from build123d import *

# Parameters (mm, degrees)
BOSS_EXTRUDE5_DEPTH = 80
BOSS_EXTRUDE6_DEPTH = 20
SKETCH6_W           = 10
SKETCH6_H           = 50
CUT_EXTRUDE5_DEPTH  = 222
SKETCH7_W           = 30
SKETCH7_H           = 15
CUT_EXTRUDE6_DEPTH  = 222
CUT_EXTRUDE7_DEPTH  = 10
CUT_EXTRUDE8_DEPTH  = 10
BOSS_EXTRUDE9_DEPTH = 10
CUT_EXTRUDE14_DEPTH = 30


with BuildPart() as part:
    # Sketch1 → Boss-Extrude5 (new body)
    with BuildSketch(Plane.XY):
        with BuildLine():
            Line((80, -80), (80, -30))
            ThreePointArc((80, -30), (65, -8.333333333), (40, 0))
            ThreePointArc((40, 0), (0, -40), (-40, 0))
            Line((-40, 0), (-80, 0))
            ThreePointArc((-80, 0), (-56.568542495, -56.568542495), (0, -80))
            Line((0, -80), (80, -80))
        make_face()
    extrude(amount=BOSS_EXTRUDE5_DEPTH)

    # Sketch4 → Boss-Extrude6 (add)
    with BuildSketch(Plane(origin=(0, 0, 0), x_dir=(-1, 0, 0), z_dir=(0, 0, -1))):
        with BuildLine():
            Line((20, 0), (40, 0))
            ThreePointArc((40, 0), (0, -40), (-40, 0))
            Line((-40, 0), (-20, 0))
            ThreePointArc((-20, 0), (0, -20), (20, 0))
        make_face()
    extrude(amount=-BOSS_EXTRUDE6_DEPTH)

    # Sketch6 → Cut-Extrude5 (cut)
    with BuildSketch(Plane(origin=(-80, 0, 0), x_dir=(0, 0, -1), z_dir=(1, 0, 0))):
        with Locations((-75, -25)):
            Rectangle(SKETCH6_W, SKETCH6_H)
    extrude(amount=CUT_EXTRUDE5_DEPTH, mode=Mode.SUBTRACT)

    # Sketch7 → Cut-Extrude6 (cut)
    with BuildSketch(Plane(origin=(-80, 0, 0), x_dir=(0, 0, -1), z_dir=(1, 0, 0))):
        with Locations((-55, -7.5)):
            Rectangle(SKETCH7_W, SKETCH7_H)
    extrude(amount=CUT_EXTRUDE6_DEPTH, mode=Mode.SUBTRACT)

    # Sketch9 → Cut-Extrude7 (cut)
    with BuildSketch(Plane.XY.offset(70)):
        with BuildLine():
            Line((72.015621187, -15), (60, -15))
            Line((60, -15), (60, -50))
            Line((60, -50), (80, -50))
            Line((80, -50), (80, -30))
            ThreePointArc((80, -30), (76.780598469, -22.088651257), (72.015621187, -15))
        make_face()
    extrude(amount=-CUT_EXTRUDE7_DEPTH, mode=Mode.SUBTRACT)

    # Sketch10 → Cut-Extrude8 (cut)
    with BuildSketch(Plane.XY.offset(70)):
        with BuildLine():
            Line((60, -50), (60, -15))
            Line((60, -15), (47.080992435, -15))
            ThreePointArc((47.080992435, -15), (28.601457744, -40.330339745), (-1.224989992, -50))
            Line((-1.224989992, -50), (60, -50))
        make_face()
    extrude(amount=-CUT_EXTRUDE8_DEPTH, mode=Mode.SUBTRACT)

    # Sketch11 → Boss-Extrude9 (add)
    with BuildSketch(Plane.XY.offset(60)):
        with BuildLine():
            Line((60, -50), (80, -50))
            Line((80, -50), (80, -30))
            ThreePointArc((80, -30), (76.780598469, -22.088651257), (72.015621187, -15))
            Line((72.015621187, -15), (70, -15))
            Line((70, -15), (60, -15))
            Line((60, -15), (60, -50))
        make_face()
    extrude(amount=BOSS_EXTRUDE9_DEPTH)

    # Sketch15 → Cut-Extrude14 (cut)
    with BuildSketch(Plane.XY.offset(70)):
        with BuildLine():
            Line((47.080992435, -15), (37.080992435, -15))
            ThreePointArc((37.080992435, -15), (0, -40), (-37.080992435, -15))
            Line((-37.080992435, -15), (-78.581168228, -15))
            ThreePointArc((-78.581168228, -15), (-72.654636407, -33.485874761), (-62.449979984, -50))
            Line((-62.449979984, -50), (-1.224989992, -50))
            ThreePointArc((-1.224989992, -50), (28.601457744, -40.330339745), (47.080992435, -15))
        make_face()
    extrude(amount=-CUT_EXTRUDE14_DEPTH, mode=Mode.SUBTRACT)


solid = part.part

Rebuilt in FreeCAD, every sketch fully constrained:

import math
import FreeCAD as App
import Part
import Sketcher
Q = App.Units.Quantity


def add_polygon(sketch, points):
    """Adds a closed chain of lines whose ends are joined by coincident constraints."""
    first, n = sketch.GeometryCount, len(points)
    for a, b in zip(points, points[1:] + points[:1]):
        sketch.addGeometry(Part.LineSegment(App.Vector(*a, 0), App.Vector(*b, 0)), False)
    for i in range(n):
        sketch.addConstraint(Sketcher.Constraint("Coincident", first + i, 2, first + (i + 1) % n, 1))

doc = App.newDocument("Part")
body = doc.addObject("PartDesign::Body", "Body")

sketch1 = doc.addObject("Sketcher::SketchObject", "Sketch")
body.addObject(sketch1)
sketch1.AttachmentSupport = (doc.XY_Plane, [""])
sketch1.MapMode = "FlatFace"
sketch1.addGeometry([
    Part.LineSegment(App.Vector(80, -80, 0), App.Vector(80, -30, 0)),
    Part.ArcOfCircle(Part.Circle(App.Vector(40, -42, 0), App.Vector(0, 0, 1), 42), math.radians(16), math.radians(90)),
    Part.ArcOfCircle(Part.Circle(App.Vector(0, 0, 0), App.Vector(0, 0, 1), 40), math.radians(180), math.radians(360)),
    Part.LineSegment(App.Vector(-40, 0, 0), App.Vector(-80, 0, 0)),
    Part.ArcOfCircle(Part.Circle(App.Vector(0, 0, 0), App.Vector(0, 0, 1), 80), math.radians(180), math.radians(270)),
    Part.LineSegment(App.Vector(0, -80, 0), App.Vector(80, -80, 0)),
], False)
sketch1.addConstraint([
    Sketcher.Constraint("Coincident", 0, 2, 1, 1),
    Sketcher.Constraint("Coincident", 1, 2, 2, 2),
    Sketcher.Constraint("Coincident", 2, 1, 3, 1),
    Sketcher.Constraint("Coincident", 3, 2, 4, 1),
    Sketcher.Constraint("Tangent", 4, 2, 5, 1),
    Sketcher.Constraint("Coincident", 5, 2, 0, 1),
    Sketcher.Constraint("Vertical", 0),
    Sketcher.Constraint("Horizontal", 3),
    Sketcher.Constraint("Horizontal", 5),
    Sketcher.Constraint("Coincident", 2, 3, -1, 1),
    Sketcher.Constraint("Coincident", 4, 3, -1, 1),
    Sketcher.Constraint("PointOnObject", 1, 2, -1),
    Sketcher.Constraint("PointOnObject", 2, 1, -1),
    Sketcher.Constraint("Radius", 2, Q("40 mm")),
    Sketcher.Constraint("Radius", 4, Q("80 mm")),
    Sketcher.Constraint("DistanceX", 5, 1, 5, 2, Q("80 mm")),
    Sketcher.Constraint("DistanceY", 0, 1, 0, 2, Q("50 mm")),
    Sketcher.Constraint("DistanceX", -1, 1, 1, 3, Q("40 mm")),
])
pad1 = doc.addObject("PartDesign::Pad", "Pad")
body.addObject(pad1)
pad1.Profile = sketch1
pad1.Length = 80

sketch2 = doc.addObject("Sketcher::SketchObject", "Sketch001")
body.addObject(sketch2)
sketch2.AttachmentSupport = (doc.XY_Plane, [""])
sketch2.MapMode = "FlatFace"
sketch2.addGeometry([
    Part.LineSegment(App.Vector(-40, 0, 0), App.Vector(-20, 0, 0)),
    Part.ArcOfCircle(Part.Circle(App.Vector(0, 0, 0), App.Vector(0, 0, 1), 20), math.radians(180), math.radians(360)),
    Part.LineSegment(App.Vector(20, 0, 0), App.Vector(40, 0, 0)),
    Part.ArcOfCircle(Part.Circle(App.Vector(0, 0, 0), App.Vector(0, 0, 1), 40), math.radians(180), math.radians(360)),
], False)
sketch2.addConstraint([
    Sketcher.Constraint("Coincident", 0, 2, 1, 1),
    Sketcher.Constraint("Coincident", 1, 2, 2, 1),
    Sketcher.Constraint("Coincident", 2, 2, 3, 2),
    Sketcher.Constraint("Coincident", 3, 1, 0, 1),
    Sketcher.Constraint("Horizontal", 0),
    Sketcher.Constraint("Horizontal", 2),
    Sketcher.Constraint("Coincident", 1, 3, -1, 1),
    Sketcher.Constraint("Coincident", 3, 3, -1, 1),
    Sketcher.Constraint("PointOnObject", 0, 2, -1),
    Sketcher.Constraint("PointOnObject", 1, 2, -1),
    Sketcher.Constraint("Radius", 1, Q("20 mm")),
    Sketcher.Constraint("Radius", 3, Q("40 mm")),
])
pad2 = doc.addObject("PartDesign::Pad", "Pad001")
body.addObject(pad2)
pad2.Profile = sketch2
pad2.Length = 20

sketch3 = doc.addObject("Sketcher::SketchObject", "Sketch002")
body.addObject(sketch3)
sketch3.AttachmentSupport = (doc.YZ_Plane, [""])
sketch3.MapMode = "FlatFace"
sketch3.AttachmentOffset = App.Placement(App.Vector(0, 0, -80), App.Rotation())
add_polygon(sketch3, [(0, 80), (-50, 80), (-50, 70), (0, 70)])
sketch3.addConstraint([
    Sketcher.Constraint("Horizontal", 0),
    Sketcher.Constraint("Vertical", 1),
    Sketcher.Constraint("Horizontal", 2),
    Sketcher.Constraint("Vertical", 3),
    Sketcher.Constraint("PointOnObject", 2, 2, -2),
    Sketcher.Constraint("DistanceX", 0, 2, 0, 1, Q("50 mm")),
    Sketcher.Constraint("DistanceY", 1, 2, 1, 1, Q("10 mm")),
    Sketcher.Constraint("DistanceY", -1, 1, 0, 2, Q("80 mm")),
])
pocket1 = doc.addObject("PartDesign::Pocket", "Pocket")
body.addObject(pocket1)
pocket1.Profile = sketch3
pocket1.Length = 222
pocket1.Reversed = True

sketch4 = doc.addObject("Sketcher::SketchObject", "Sketch003")
body.addObject(sketch4)
sketch4.AttachmentSupport = (doc.YZ_Plane, [""])
sketch4.MapMode = "FlatFace"
sketch4.AttachmentOffset = App.Placement(App.Vector(0, 0, -80), App.Rotation())
add_polygon(sketch4, [(0, 70), (-15, 70), (-15, 40), (0, 40)])
sketch4.addConstraint([
    Sketcher.Constraint("Horizontal", 0),
    Sketcher.Constraint("Vertical", 1),
    Sketcher.Constraint("Horizontal", 2),
    Sketcher.Constraint("Vertical", 3),
    Sketcher.Constraint("PointOnObject", 2, 2, -2),
    Sketcher.Constraint("DistanceX", 0, 2, 0, 1, Q("15 mm")),
    Sketcher.Constraint("DistanceY", 1, 2, 1, 1, Q("30 mm")),
    Sketcher.Constraint("DistanceY", -1, 1, 0, 2, Q("70 mm")),
])
pocket2 = doc.addObject("PartDesign::Pocket", "Pocket001")
body.addObject(pocket2)
pocket2.Profile = sketch4
pocket2.Length = 222
pocket2.Reversed = True

sketch5 = doc.addObject("Sketcher::SketchObject", "Sketch004")
body.addObject(sketch5)
sketch5.AttachmentSupport = (doc.XY_Plane, [""])
sketch5.MapMode = "FlatFace"
sketch5.AttachmentOffset = App.Placement(App.Vector(0, 0, 70), App.Rotation())
sketch5.addGeometry([
    Part.LineSegment(App.Vector(72, -15, 0), App.Vector(60, -15, 0)),
    Part.LineSegment(App.Vector(60, -15, 0), App.Vector(60, -50, 0)),
    Part.LineSegment(App.Vector(60, -50, 0), App.Vector(80, -50, 0)),
    Part.LineSegment(App.Vector(80, -50, 0), App.Vector(80, -30, 0)),
    Part.ArcOfCircle(Part.Circle(App.Vector(40, -42, 0), App.Vector(0, 0, 1), 42), math.radians(16), math.radians(40)),
], False)
sketch5.addConstraint([
    Sketcher.Constraint("Coincident", 0, 2, 1, 1),
    Sketcher.Constraint("Coincident", 1, 2, 2, 1),
    Sketcher.Constraint("Coincident", 2, 2, 3, 1),
    Sketcher.Constraint("Coincident", 3, 2, 4, 1),
    Sketcher.Constraint("Coincident", 4, 2, 0, 1),
    Sketcher.Constraint("Horizontal", 0),
    Sketcher.Constraint("Vertical", 1),
    Sketcher.Constraint("Horizontal", 2),
    Sketcher.Constraint("Vertical", 3),
    Sketcher.Constraint("Equal", 2, 3),
    Sketcher.Constraint("DistanceX", 2, 1, 2, 2, Q("20 mm")),
    Sketcher.Constraint("DistanceY", 1, 2, 1, 1, Q("35 mm")),
    Sketcher.Constraint("DistanceX", -1, 1, 4, 3, Q("40 mm")),
    Sketcher.Constraint("DistanceX", -1, 1, 0, 2, Q("60 mm")),
    Sketcher.Constraint("DistanceY", 0, 2, -1, 1, Q("15 mm")),
    Sketcher.Constraint("Radius", 4, Q("41.666667 mm")),
])
pocket3 = doc.addObject("PartDesign::Pocket", "Pocket002")
body.addObject(pocket3)
pocket3.Profile = sketch5
pocket3.Length = 10

sketch6 = doc.addObject("Sketcher::SketchObject", "Sketch005")
body.addObject(sketch6)
sketch6.AttachmentSupport = (doc.XY_Plane, [""])
sketch6.MapMode = "FlatFace"
sketch6.AttachmentOffset = App.Placement(App.Vector(0, 0, 70), App.Rotation())
sketch6.addGeometry([
    Part.LineSegment(App.Vector(60, -50, 0), App.Vector(60, -15, 0)),
    Part.LineSegment(App.Vector(60, -15, 0), App.Vector(47, -15, 0)),
    Part.ArcOfCircle(Part.Circle(App.Vector(-1, 1, 0), App.Vector(0, 0, 1), 51), math.radians(-90), math.radians(-18)),
    Part.LineSegment(App.Vector(-1, -50, 0), App.Vector(60, -50, 0)),
], False)
sketch6.addConstraint([
    Sketcher.Constraint("Coincident", 0, 2, 1, 1),
    Sketcher.Constraint("Coincident", 1, 2, 2, 2),
    Sketcher.Constraint("Tangent", 2, 1, 3, 1),
    Sketcher.Constraint("Coincident", 3, 2, 0, 1),
    Sketcher.Constraint("Vertical", 0),
    Sketcher.Constraint("Horizontal", 1),
    Sketcher.Constraint("Horizontal", 3),
    Sketcher.Constraint("DistanceY", 0, 1, 0, 2, Q("35 mm")),
    Sketcher.Constraint("DistanceX", -1, 1, 0, 2, Q("60 mm")),
    Sketcher.Constraint("DistanceY", 0, 2, -1, 1, Q("15 mm")),
    Sketcher.Constraint("Radius", 2, Q("50.835256 mm")),
    Sketcher.Constraint("DistanceX", 3, 1, 3, 2, Q("61.22499 mm")),
])
pocket4 = doc.addObject("PartDesign::Pocket", "Pocket003")
body.addObject(pocket4)
pocket4.Profile = sketch6
pocket4.Length = 10

sketch7 = doc.addObject("Sketcher::SketchObject", "Sketch006")
body.addObject(sketch7)
sketch7.AttachmentSupport = (doc.XY_Plane, [""])
sketch7.MapMode = "FlatFace"
sketch7.AttachmentOffset = App.Placement(App.Vector(0, 0, 60), App.Rotation())
sketch7.addGeometry([
    Part.LineSegment(App.Vector(60, -50, 0), App.Vector(80, -50, 0)),
    Part.LineSegment(App.Vector(80, -50, 0), App.Vector(80, -30, 0)),
    Part.ArcOfCircle(Part.Circle(App.Vector(40, -42, 0), App.Vector(0, 0, 1), 42), math.radians(16), math.radians(40)),
    Part.LineSegment(App.Vector(72, -15, 0), App.Vector(60, -15, 0)),
    Part.LineSegment(App.Vector(60, -15, 0), App.Vector(60, -50, 0)),
], False)
sketch7.addConstraint([
    Sketcher.Constraint("Coincident", 0, 2, 1, 1),
    Sketcher.Constraint("Coincident", 1, 2, 2, 1),
    Sketcher.Constraint("Coincident", 2, 2, 3, 1),
    Sketcher.Constraint("Coincident", 3, 2, 4, 1),
    Sketcher.Constraint("Coincident", 4, 2, 0, 1),
    Sketcher.Constraint("Horizontal", 0),
    Sketcher.Constraint("Vertical", 1),
    Sketcher.Constraint("Horizontal", 3),
    Sketcher.Constraint("Vertical", 4),
    Sketcher.Constraint("Equal", 0, 1),
    Sketcher.Constraint("DistanceX", 0, 1, 0, 2, Q("20 mm")),
    Sketcher.Constraint("DistanceY", 4, 2, 4, 1, Q("35 mm")),
    Sketcher.Constraint("DistanceX", -1, 1, 2, 3, Q("40 mm")),
    Sketcher.Constraint("DistanceX", -1, 1, 0, 2, Q("80 mm")),
    Sketcher.Constraint("DistanceY", 0, 2, -1, 1, Q("50 mm")),
    Sketcher.Constraint("Radius", 2, Q("41.666667 mm")),
])
pad3 = doc.addObject("PartDesign::Pad", "Pad002")
body.addObject(pad3)
pad3.Profile = sketch7
pad3.Length = 10

sketch8 = doc.addObject("Sketcher::SketchObject", "Sketch007")
body.addObject(sketch8)
sketch8.AttachmentSupport = (doc.XY_Plane, [""])
sketch8.MapMode = "FlatFace"
sketch8.AttachmentOffset = App.Placement(App.Vector(0, 0, 70), App.Rotation())
sketch8.addGeometry([
    Part.LineSegment(App.Vector(47, -15, 0), App.Vector(37, -15, 0)),
    Part.ArcOfCircle(Part.Circle(App.Vector(0, 0, 0), App.Vector(0, 0, 1), 40), math.radians(-158), math.radians(-22)),
    Part.LineSegment(App.Vector(-37, -15, 0), App.Vector(-79, -15, 0)),
    Part.ArcOfCircle(Part.Circle(App.Vector(0, 0, 0), App.Vector(0, 0, 1), 80), math.radians(-169), math.radians(-141)),
    Part.LineSegment(App.Vector(-62, -50, 0), App.Vector(-1, -50, 0)),
    Part.ArcOfCircle(Part.Circle(App.Vector(-1, 1, 0), App.Vector(0, 0, 1), 51), math.radians(-90), math.radians(-18)),
], False)
sketch8.addConstraint([
    Sketcher.Constraint("Coincident", 0, 2, 1, 2),
    Sketcher.Constraint("Coincident", 1, 1, 2, 1),
    Sketcher.Constraint("Coincident", 2, 2, 3, 1),
    Sketcher.Constraint("Coincident", 3, 2, 4, 1),
    Sketcher.Constraint("Tangent", 4, 2, 5, 1),
    Sketcher.Constraint("Coincident", 5, 2, 0, 1),
    Sketcher.Constraint("Horizontal", 0),
    Sketcher.Constraint("Horizontal", 2),
    Sketcher.Constraint("Horizontal", 4),
    Sketcher.Constraint("Coincident", 1, 3, -1, 1),
    Sketcher.Constraint("Coincident", 3, 3, -1, 1),
    Sketcher.Constraint("Horizontal", 0, 2, 1, 1),
    Sketcher.Constraint("Radius", 1, Q("40 mm")),
    Sketcher.Constraint("Radius", 3, Q("80 mm")),
    Sketcher.Constraint("DistanceX", 0, 2, 0, 1, Q("10 mm")),
    Sketcher.Constraint("DistanceY", 0, 2, -1, 1, Q("15 mm")),
    Sketcher.Constraint("DistanceY", 3, 2, -1, 1, Q("50 mm")),
    Sketcher.Constraint("Radius", 5, Q("50.835256 mm")),
])
pocket5 = doc.addObject("PartDesign::Pocket", "Pocket004")
body.addObject(pocket5)
pocket5.Profile = sketch8
pocket5.Length = 30

doc.recompute()
